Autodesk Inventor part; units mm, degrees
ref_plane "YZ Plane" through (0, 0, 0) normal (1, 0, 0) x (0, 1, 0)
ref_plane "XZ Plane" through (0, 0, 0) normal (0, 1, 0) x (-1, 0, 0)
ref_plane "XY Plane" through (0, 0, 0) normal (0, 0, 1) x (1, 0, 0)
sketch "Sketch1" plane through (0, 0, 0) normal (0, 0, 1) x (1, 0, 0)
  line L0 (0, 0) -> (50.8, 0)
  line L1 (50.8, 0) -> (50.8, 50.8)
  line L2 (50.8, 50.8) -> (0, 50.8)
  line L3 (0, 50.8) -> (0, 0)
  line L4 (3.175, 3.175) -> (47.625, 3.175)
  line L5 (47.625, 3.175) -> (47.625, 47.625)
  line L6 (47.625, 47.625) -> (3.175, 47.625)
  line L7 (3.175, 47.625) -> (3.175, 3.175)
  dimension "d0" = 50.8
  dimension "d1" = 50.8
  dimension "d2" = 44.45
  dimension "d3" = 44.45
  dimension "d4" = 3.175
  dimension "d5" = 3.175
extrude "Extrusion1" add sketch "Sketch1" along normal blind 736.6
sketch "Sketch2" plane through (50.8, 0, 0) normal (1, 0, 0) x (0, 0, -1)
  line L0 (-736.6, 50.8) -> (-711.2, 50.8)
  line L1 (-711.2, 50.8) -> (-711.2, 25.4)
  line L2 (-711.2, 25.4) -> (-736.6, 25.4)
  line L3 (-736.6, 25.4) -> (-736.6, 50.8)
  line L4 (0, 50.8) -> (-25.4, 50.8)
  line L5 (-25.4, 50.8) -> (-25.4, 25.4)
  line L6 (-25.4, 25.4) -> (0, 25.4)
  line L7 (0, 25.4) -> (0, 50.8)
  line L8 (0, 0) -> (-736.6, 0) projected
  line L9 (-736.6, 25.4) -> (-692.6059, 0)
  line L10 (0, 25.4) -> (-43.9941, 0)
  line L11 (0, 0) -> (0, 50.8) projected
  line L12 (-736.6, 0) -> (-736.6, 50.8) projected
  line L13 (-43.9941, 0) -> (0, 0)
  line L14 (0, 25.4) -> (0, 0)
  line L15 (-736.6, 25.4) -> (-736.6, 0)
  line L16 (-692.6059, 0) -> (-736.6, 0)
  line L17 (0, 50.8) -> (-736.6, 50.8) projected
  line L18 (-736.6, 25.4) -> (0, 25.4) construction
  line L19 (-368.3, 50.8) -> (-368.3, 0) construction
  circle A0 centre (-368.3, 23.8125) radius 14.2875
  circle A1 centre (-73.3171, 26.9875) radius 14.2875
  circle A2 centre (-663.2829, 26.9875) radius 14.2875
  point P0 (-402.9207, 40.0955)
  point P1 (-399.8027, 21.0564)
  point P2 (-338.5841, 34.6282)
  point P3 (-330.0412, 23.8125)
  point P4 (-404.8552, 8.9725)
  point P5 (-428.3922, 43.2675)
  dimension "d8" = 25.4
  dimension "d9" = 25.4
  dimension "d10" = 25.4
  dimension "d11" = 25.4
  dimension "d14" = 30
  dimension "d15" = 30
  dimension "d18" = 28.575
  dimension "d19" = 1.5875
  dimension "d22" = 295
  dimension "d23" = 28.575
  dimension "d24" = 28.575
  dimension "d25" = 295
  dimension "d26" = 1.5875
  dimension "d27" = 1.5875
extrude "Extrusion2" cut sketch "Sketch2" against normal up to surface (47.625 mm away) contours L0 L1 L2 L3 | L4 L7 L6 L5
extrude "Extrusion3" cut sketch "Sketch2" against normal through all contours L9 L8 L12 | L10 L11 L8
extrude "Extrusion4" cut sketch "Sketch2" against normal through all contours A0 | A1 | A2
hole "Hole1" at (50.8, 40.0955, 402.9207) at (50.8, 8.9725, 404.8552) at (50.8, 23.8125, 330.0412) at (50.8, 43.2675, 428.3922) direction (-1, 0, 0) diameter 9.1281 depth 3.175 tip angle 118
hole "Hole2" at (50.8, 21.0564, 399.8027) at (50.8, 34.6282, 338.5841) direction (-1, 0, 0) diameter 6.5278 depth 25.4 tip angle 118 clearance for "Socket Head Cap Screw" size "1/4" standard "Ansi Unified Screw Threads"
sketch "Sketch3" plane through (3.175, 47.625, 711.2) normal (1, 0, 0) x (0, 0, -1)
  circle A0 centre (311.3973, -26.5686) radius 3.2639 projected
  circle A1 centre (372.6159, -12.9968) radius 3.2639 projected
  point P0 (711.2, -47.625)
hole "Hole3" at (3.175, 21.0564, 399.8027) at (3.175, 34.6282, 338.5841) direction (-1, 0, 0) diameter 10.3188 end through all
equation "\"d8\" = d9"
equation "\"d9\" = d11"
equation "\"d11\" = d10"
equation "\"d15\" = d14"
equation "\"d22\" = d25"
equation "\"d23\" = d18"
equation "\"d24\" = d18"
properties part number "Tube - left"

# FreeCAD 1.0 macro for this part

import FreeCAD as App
import Part
import Sketcher
Q = App.Units.Quantity


def add_polygon(sketch, points):
    """Adds a closed chain of lines whose ends are joined by coincident constraints."""
    first, n = sketch.GeometryCount, len(points)
    for a, b in zip(points, points[1:] + points[:1]):
        sketch.addGeometry(Part.LineSegment(App.Vector(*a, 0), App.Vector(*b, 0)), False)
    for i in range(n):
        sketch.addConstraint(Sketcher.Constraint("Coincident", first + i, 2, first + (i + 1) % n, 1))

doc = App.newDocument("Part")
params = doc.addObject("Spreadsheet::Sheet", "Params")
for row, (alias, value) in enumerate([
    ("sketch1_width", "2 in"),
    ("sketch1_width2", "1.75 in"),
    ("pad1_length", "29 in"),
    ("sketch2_width", "1 in"),
    ("pocket1_length", "1.875 in"),
    ("sketch3_width", "1 in"),
    ("sketch3_length", "2 in"),
    ("sketch4_diameter", "1.125 in"),
    ("sketch5_diameter", "0.3593701 in"),
    ("hole_diameter", "0.359374 in"),
    ("hole_depth", "0.125 in"),
    ("sketch6_diameter", "0.257 in"),
    ("hole2_diameter", "0.257 in"),
    ("hole2_depth", "1 in"),
    ("sketch7_diameter", "0.406252 in"),
    ("hole3_diameter", "0.406252 in"),
], start=1):
    params.set(f"A{row}", alias)
    params.set(f"B{row}", "=" + value)
    params.setAlias(f"B{row}", alias)

body = doc.addObject("PartDesign::Body", "Body")

# Sketch on XY plane
sketch1 = body.newObject("Sketcher::SketchObject", "Sketch")
sketch1.AttachmentSupport = (doc.getObject("XY_Plane"), [""])
sketch1.MapMode = "FlatFace"
add_polygon(sketch1, [(0, 51), (0, 0), (51, 0), (51, 51)])  # lines 0-3
add_polygon(sketch1, [(48, 3), (3, 3), (3, 48), (48, 48)])  # lines 4-7
sketch1.addConstraint([
    Sketcher.Constraint("Vertical", 0),
    Sketcher.Constraint("Horizontal", 1),
    Sketcher.Constraint("Vertical", 2),
    Sketcher.Constraint("Horizontal", 3),
    Sketcher.Constraint("Horizontal", 4),
    Sketcher.Constraint("Vertical", 5),
    Sketcher.Constraint("Horizontal", 6),
    Sketcher.Constraint("Vertical", 7),
    Sketcher.Constraint("Coincident", 0, 2, -1, 1),
    Sketcher.Constraint("Equal", 3, 0),
    Sketcher.Constraint("Equal", 6, 5),
    Sketcher.Constraint("DistanceX", 1, 1, 1, 2, Q("2 in")),
    Sketcher.Constraint("DistanceX", 4, 2, 4, 1, Q("1.75 in")),
    Sketcher.Constraint("DistanceX", -1, 1, 4, 2, Q("0.125 in")),
    Sketcher.Constraint("DistanceY", -1, 1, 4, 2, Q("0.125 in")),
])
sketch1.setExpression("Constraints[19]", "Params.sketch1_width")
sketch1.setExpression("Constraints[20]", "Params.sketch1_width2")
pad1 = body.newObject("PartDesign::Pad", "Pad")
pad1.Profile = sketch1
pad1.setExpression("Length", "Params.pad1_length")

# Sketch on YZ plane
sketch2 = body.newObject("Sketcher::SketchObject", "Sketch001")
sketch2.AttachmentSupport = (doc.getObject("YZ_Plane"), [""])
sketch2.MapMode = "FlatFace"
sketch2.AttachmentOffset = App.Placement(App.Vector(0, 0, 2 * 25.4), App.Rotation())
add_polygon(sketch2, [(51, 711), (51, 737), (25, 737), (25, 711)])  # lines 0-3
add_polygon(sketch2, [(51, 0), (51, 25), (25, 25), (25, 0)])  # lines 4-7
sketch2.addConstraint([
    Sketcher.Constraint("Vertical", 0),
    Sketcher.Constraint("Horizontal", 1),
    Sketcher.Constraint("Vertical", 2),
    Sketcher.Constraint("Horizontal", 3),
    Sketcher.Constraint("Vertical", 4),
    Sketcher.Constraint("Horizontal", 5),
    Sketcher.Constraint("Vertical", 6),
    Sketcher.Constraint("Horizontal", 7),
    Sketcher.Constraint("PointOnObject", 6, 2, -1),
    Sketcher.Constraint("Vertical", 3, 2, 4, 2),
    Sketcher.Constraint("Vertical", 2, 2, 5, 2),
    Sketcher.Constraint("Equal", 7, 0),
    Sketcher.Constraint("Equal", 2, 4),
    Sketcher.Constraint("DistanceX", 1, 2, 1, 1, Q("1 in")),
    Sketcher.Constraint("DistanceX", -1, 1, 1, 2, Q("1 in")),
    Sketcher.Constraint("DistanceY", -1, 1, 0, 2, Q("29 in")),
])
sketch2.setExpression("Constraints[21]", "Params.sketch2_width")
pocket1 = body.newObject("PartDesign::Pocket", "Pocket")
pocket1.Profile = sketch2
pocket1.setExpression("Length", "Params.pocket1_length")

# Sketch on YZ plane
sketch3 = body.newObject("Sketcher::SketchObject", "Sketch002")
sketch3.AttachmentSupport = (doc.getObject("YZ_Plane"), [""])
sketch3.MapMode = "FlatFace"
sketch3.AttachmentOffset = App.Placement(App.Vector(0, 0, 2 * 25.4), App.Rotation())
add_polygon(sketch3, [(0, 693), (25, 737), (0, 737)])  # lines 0-2
add_polygon(sketch3, [(25, 0), (0, 44), (0, 0)])  # lines 3-5
sketch3.addConstraint([
    Sketcher.Constraint("Horizontal", 1),
    Sketcher.Constraint("Vertical", 2),
    Sketcher.Constraint("Vertical", 4),
    Sketcher.Constraint("Horizontal", 5),
    Sketcher.Constraint("Coincident", 4, 2, -1, 1),
    Sketcher.Constraint("PointOnObject", 1, 2, -2),
    Sketcher.Constraint("Vertical", 0, 2, 5, 2),
    Sketcher.Constraint("Equal", 2, 4),
    Sketcher.Constraint("DistanceX", 1, 2, 1, 1, Q("1 in")),
    Sketcher.Constraint("Distance", 0, Q("2 in")),
    Sketcher.Constraint("DistanceY", -1, 1, 0, 2, Q("29 in")),
])
sketch3.setExpression("Constraints[14]", "Params.sketch3_width")
sketch3.setExpression("Constraints[15]", "Params.sketch3_length")
pocket2 = body.newObject("PartDesign::Pocket", "Pocket001")
pocket2.Profile = sketch3
pocket2.Type = "ThroughAll"

# Sketch on YZ plane
sketch4 = body.newObject("Sketcher::SketchObject", "Sketch003")
sketch4.AttachmentSupport = (doc.getObject("YZ_Plane"), [""])
sketch4.MapMode = "FlatFace"
sketch4.AttachmentOffset = App.Placement(App.Vector(0, 0, 2 * 25.4), App.Rotation())
sketch4.addGeometry([
    Part.Circle(App.Vector(24, 368, 0), App.Vector(0, 0, 1), 14),
    Part.Circle(App.Vector(27, 73, 0), App.Vector(0, 0, 1), 14),
    Part.Circle(App.Vector(27, 663, 0), App.Vector(0, 0, 1), 14),
], False)
sketch4.addConstraint([
    Sketcher.Constraint("Equal", 0, 1),
    Sketcher.Constraint("Equal", 1, 2),
    Sketcher.Constraint("Vertical", 1, 3, 2, 3),
    Sketcher.Constraint("Diameter", 0, Q("1.125 in")),
    Sketcher.Constraint("DistanceY", -1, 1, 0, 3, Q("14.5 in")),
    Sketcher.Constraint("DistanceX", -1, 1, 0, 3, Q("0.9375 in")),
    Sketcher.Constraint("DistanceX", -1, 1, 1, 3, Q("1.0625 in")),
    Sketcher.Constraint("DistanceY", 1, 3, 2, 3, Q("23.227 in")),
    Sketcher.Constraint("DistanceY", -1, 1, 1, 3, Q("2.8865 in")),
])
sketch4.setExpression("Constraints[3]", "Params.sketch4_diameter")
pocket3 = body.newObject("PartDesign::Pocket", "Pocket002")
pocket3.Profile = sketch4
pocket3.Type = "ThroughAll"

# Sketch on YZ plane
sketch5 = body.newObject("Sketcher::SketchObject", "Sketch004")
sketch5.AttachmentSupport = (doc.getObject("YZ_Plane"), [""])
sketch5.MapMode = "FlatFace"
sketch5.AttachmentOffset = App.Placement(App.Vector(0, 0, 2 * 25.4), App.Rotation())
sketch5.addGeometry([
    Part.Circle(App.Vector(40.1, 402.9, 0), App.Vector(0, 0, 1), 4.6),
    Part.Circle(App.Vector(9, 404.9, 0), App.Vector(0, 0, 1), 4.6),
    Part.Circle(App.Vector(23.8, 330, 0), App.Vector(0, 0, 1), 4.6),
    Part.Circle(App.Vector(43.3, 428.4, 0), App.Vector(0, 0, 1), 4.6),
], False)
sketch5.addConstraint([
    Sketcher.Constraint("Equal", 0, 1),
    Sketcher.Constraint("Equal", 1, 2),
    Sketcher.Constraint("Equal", 2, 3),
    Sketcher.Constraint("Diameter", 0, Q("0.3593701 in")),
    Sketcher.Constraint("DistanceX", -1, 1, 2, 3, Q("0.9375 in")),
    Sketcher.Constraint("DistanceX", 1, 3, 3, 3, Q("1.3502 in")),
    Sketcher.Constraint("DistanceX", -1, 1, 0, 3, 40.0955),
    Sketcher.Constraint("DistanceY", -1, 1, 0, 3, 402.9207),
    Sketcher.Constraint("DistanceX", -1, 1, 1, 3, 8.9725),
    Sketcher.Constraint("DistanceY", -1, 1, 1, 3, 404.8552),
    Sketcher.Constraint("DistanceY", -1, 1, 2, 3, 330.0412),
    Sketcher.Constraint("DistanceY", -1, 1, 3, 3, 428.3922),
])
sketch5.setExpression("Constraints[3]", "Params.sketch5_diameter")
doc.recompute()
hole = body.newObject("PartDesign::Hole", "Hole")
hole.Profile = sketch5
hole.ThreadType = "None"
hole.setExpression("Diameter", "Params.hole_diameter")
hole.DepthType = "Dimension"
hole.setExpression("Depth", "Params.hole_depth")
hole.DrillPoint = "Angled"
hole.DrillPointAngle = 118

# Sketch on YZ plane
sketch6 = body.newObject("Sketcher::SketchObject", "Sketch005")
sketch6.AttachmentSupport = (doc.getObject("YZ_Plane"), [""])
sketch6.MapMode = "FlatFace"
sketch6.AttachmentOffset = App.Placement(App.Vector(0, 0, 2 * 25.4), App.Rotation())
sketch6.addGeometry([
    Part.Circle(App.Vector(21.1, 399.8, 0), App.Vector(0, 0, 1), 3.3),
    Part.Circle(App.Vector(34.6, 338.6, 0), App.Vector(0, 0, 1), 3.3),
], False)
sketch6.addConstraint([
    Sketcher.Constraint("Equal", 0, 1),
    Sketcher.Constraint("Diameter", 0, Q("0.257 in")),
    Sketcher.Constraint("DistanceX", -1, 1, 0, 3, Q("0.829 in")),
    Sketcher.Constraint("DistanceY", -1, 1, 0, 3, 399.8027),
    Sketcher.Constraint("DistanceX", -1, 1, 1, 3, 34.6282),
    Sketcher.Constraint("DistanceY", -1, 1, 1, 3, 338.584),
])
sketch6.setExpression("Constraints[1]", "Params.sketch6_diameter")
doc.recompute()
hole2 = body.newObject("PartDesign::Hole", "Hole001")
hole2.Profile = sketch6
hole2.ThreadType = "None"
hole2.setExpression("Diameter", "Params.hole2_diameter")
hole2.DepthType = "Dimension"
hole2.setExpression("Depth", "Params.hole2_depth")
hole2.DrillPoint = "Angled"
hole2.DrillPointAngle = 118

# Sketch on YZ plane
sketch7 = body.newObject("Sketcher::SketchObject", "Sketch006")
sketch7.AttachmentSupport = (doc.getObject("YZ_Plane"), [""])
sketch7.MapMode = "FlatFace"
sketch7.AttachmentOffset = App.Placement(App.Vector(0, 0, 0.125 * 25.4), App.Rotation())
sketch7.addGeometry([
    Part.Circle(App.Vector(21, 400, 0), App.Vector(0, 0, 1), 5),
    Part.Circle(App.Vector(35, 339, 0), App.Vector(0, 0, 1), 5),
], False)
sketch7.addConstraint([
    Sketcher.Constraint("Equal", 0, 1),
    Sketcher.Constraint("Diameter", 0, Q("0.406252 in")),
    Sketcher.Constraint("DistanceX", -1, 1, 0, 3, Q("0.829 in")),
    Sketcher.Constraint("DistanceY", -1, 1, 0, 3, 399.8027),
    Sketcher.Constraint("DistanceX", -1, 1, 1, 3, 34.6282),
    Sketcher.Constraint("DistanceY", -1, 1, 1, 3, 338.584),
])
sketch7.setExpression("Constraints[1]", "Params.sketch7_diameter")
doc.recompute()
hole3 = body.newObject("PartDesign::Hole", "Hole002")
hole3.Profile = sketch7
hole3.ThreadType = "None"
hole3.setExpression("Diameter", "Params.hole3_diameter")
hole3.DepthType = "ThroughAll"

doc.recompute()
